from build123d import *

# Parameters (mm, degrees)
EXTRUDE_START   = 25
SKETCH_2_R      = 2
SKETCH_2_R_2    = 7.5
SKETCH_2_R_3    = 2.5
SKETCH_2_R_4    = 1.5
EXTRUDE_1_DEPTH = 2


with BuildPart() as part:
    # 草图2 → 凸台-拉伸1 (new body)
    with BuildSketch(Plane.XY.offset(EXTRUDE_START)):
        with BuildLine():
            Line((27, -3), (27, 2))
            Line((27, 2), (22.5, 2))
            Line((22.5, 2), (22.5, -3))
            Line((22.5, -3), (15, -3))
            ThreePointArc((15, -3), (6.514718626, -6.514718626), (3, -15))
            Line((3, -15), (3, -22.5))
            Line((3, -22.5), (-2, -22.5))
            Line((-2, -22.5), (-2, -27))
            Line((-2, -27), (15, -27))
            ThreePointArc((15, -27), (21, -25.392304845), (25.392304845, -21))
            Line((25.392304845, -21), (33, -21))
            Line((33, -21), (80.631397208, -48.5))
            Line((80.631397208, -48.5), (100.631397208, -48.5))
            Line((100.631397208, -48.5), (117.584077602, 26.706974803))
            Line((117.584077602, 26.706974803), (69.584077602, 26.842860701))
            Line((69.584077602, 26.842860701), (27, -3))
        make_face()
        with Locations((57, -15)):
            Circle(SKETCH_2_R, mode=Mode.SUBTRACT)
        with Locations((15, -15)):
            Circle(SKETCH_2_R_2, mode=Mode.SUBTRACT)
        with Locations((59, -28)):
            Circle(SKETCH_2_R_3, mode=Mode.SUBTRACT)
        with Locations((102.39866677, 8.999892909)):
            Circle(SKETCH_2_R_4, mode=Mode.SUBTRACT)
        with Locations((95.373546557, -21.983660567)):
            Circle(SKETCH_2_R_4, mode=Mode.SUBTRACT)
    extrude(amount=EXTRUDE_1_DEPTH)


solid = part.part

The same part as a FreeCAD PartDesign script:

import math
import FreeCAD as App
import Part
import Sketcher
Q = App.Units.Quantity

doc = App.newDocument("Part")
body = doc.addObject("PartDesign::Body", "Body")

# Sketch on XY plane
sketch1 = body.newObject("Sketcher::SketchObject", "Sketch")
sketch1.AttachmentSupport = (doc.getObject("XY_Plane"), [""])
sketch1.MapMode = "FlatFace"
sketch1.AttachmentOffset = App.Placement(App.Vector(0, 0, 25), App.Rotation())
sketch1.addGeometry([
    Part.LineSegment(App.Vector(27, -3, 0), App.Vector(27, 2, 0)),  # 0
    Part.LineSegment(App.Vector(27, 2, 0), App.Vector(22.5, 2, 0)),  # 1
    Part.LineSegment(App.Vector(22.5, 2, 0), App.Vector(22.5, -3, 0)),  # 2
    Part.LineSegment(App.Vector(22.5, -3, 0), App.Vector(15, -3, 0)),  # 3
    Part.ArcOfCircle(Part.Circle(App.Vector(15, -15, 0), App.Vector(0, 0, 1), 12), math.radians(90), math.radians(180)),  # 4
    Part.LineSegment(App.Vector(3, -15, 0), App.Vector(3, -22.5, 0)),  # 5
    Part.LineSegment(App.Vector(3, -22.5, 0), App.Vector(-2, -22.5, 0)),  # 6
    Part.LineSegment(App.Vector(-2, -22.5, 0), App.Vector(-2, -27, 0)),  # 7
    Part.LineSegment(App.Vector(-2, -27, 0), App.Vector(15, -27, 0)),  # 8
    Part.ArcOfCircle(Part.Circle(App.Vector(15, -15, 0), App.Vector(0, 0, 1), 12), math.radians(-90), math.radians(-30)),  # 9
    Part.LineSegment(App.Vector(25.392305, -21, 0), App.Vector(33, -21, 0)),  # 10
    Part.LineSegment(App.Vector(33, -21, 0), App.Vector(80.631397, -48.5, 0)),  # 11
    Part.LineSegment(App.Vector(80.631397, -48.5, 0), App.Vector(100.631397, -48.5, 0)),  # 12
    Part.LineSegment(App.Vector(100.631397, -48.5, 0), App.Vector(117.584078, 26.706975, 0)),  # 13
    Part.LineSegment(App.Vector(117.584078, 26.706975, 0), App.Vector(69.584078, 26.842861, 0)),  # 14
    Part.LineSegment(App.Vector(69.584078, 26.842861, 0), App.Vector(27, -3, 0)),  # 15
    Part.Circle(App.Vector(15, -15, 0), App.Vector(0, 0, 1), 7.5),  # 16
    Part.Circle(App.Vector(59, -28, 0), App.Vector(0, 0, 1), 2.5),  # 17
    Part.Circle(App.Vector(95.373547, -21.983661, 0), App.Vector(0, 0, 1), 1.5),  # 18
    Part.Circle(App.Vector(57, -15, 0), App.Vector(0, 0, 1), 2),  # 19
    Part.Circle(App.Vector(102.398667, 8.999893, 0), App.Vector(0, 0, 1), 1.5),  # 20
], False)
sketch1.addConstraint([
    Sketcher.Constraint("Coincident", 0, 2, 1, 1),
    Sketcher.Constraint("Coincident", 1, 2, 2, 1),
    Sketcher.Constraint("Coincident", 2, 2, 3, 1),
    Sketcher.Constraint("Tangent", 3, 2, 4, 1),
    Sketcher.Constraint("Tangent", 4, 2, 5, 1),
    Sketcher.Constraint("Coincident", 5, 2, 6, 1),
    Sketcher.Constraint("Coincident", 6, 2, 7, 1),
    Sketcher.Constraint("Coincident", 7, 2, 8, 1),
    Sketcher.Constraint("Tangent", 8, 2, 9, 1),
    Sketcher.Constraint("Coincident", 9, 2, 10, 1),
    Sketcher.Constraint("Coincident", 10, 2, 11, 1),
    Sketcher.Constraint("Coincident", 11, 2, 12, 1),
    Sketcher.Constraint("Coincident", 12, 2, 13, 1),
    Sketcher.Constraint("Coincident", 13, 2, 14, 1),
    Sketcher.Constraint("Coincident", 14, 2, 15, 1),
    Sketcher.Constraint("Coincident", 15, 2, 0, 1),
    Sketcher.Constraint("Vertical", 0),
    Sketcher.Constraint("Horizontal", 1),
    Sketcher.Constraint("Vertical", 2),
    Sketcher.Constraint("Horizontal", 3),
    Sketcher.Constraint("Vertical", 5),
    Sketcher.Constraint("Horizontal", 6),
    Sketcher.Constraint("Vertical", 7),
    Sketcher.Constraint("Horizontal", 8),
    Sketcher.Constraint("Horizontal", 10),
    Sketcher.Constraint("Horizontal", 12),
    Sketcher.Constraint("Coincident", 9, 3, 4, 3),
    Sketcher.Constraint("Coincident", 16, 3, 4, 3),
    Sketcher.Constraint("Equal", 4, 9),
    Sketcher.Constraint("Equal", 18, 20),
    Sketcher.Constraint("Horizontal", 16, 3, 19, 3),
    Sketcher.Constraint("Horizontal", 3, 2, 15, 2),
    Sketcher.Constraint("Equal", 6, 0),
    Sketcher.Constraint("Equal", 3, 5),
    Sketcher.Constraint("Equal", 1, 7),
    Sketcher.Constraint("Diameter", 16, 15.0),
    Sketcher.Constraint("Diameter", 17, 5.0),
    Sketcher.Constraint("Diameter", 18, 3.0),
    Sketcher.Constraint("Diameter", 19, 4.0),
    Sketcher.Constraint("Radius", 4, 12.0),
    Sketcher.Constraint("DistanceX", 6, 2, 6, 1, 5.0),
    Sketcher.Constraint("DistanceX", 12, 1, 12, 2, 20.0),
    Sketcher.Constraint("Angle", 11, Q("-30 deg")),
    Sketcher.Constraint("Distance", 11, 55.0),
    Sketcher.Constraint("Distance", 15, 52.0),
    Sketcher.Constraint("DistanceX", 1, 2, 1, 1, 4.5),
    Sketcher.Constraint("DistanceX", -1, 1, 4, 3, 15.0),
    Sketcher.Constraint("DistanceY", 4, 3, -1, 1, 15.0),
    Sketcher.Constraint("DistanceX", -1, 1, 17, 3, 59.0),
    Sketcher.Constraint("DistanceY", 17, 3, -1, 1, 28.0),
    Sketcher.Constraint("DistanceX", -1, 1, 19, 3, 57.0),
    Sketcher.Constraint("DistanceY", 9, 2, -1, 1, 21.0),
    Sketcher.Constraint("DistanceX", -1, 1, 10, 2, 33.0),
    Sketcher.Constraint("DistanceX", 14, 2, 13, 2, 48.0),
    Sketcher.Constraint("DistanceY", 18, 3, -1, 1, 21.983661),
    Sketcher.Constraint("DistanceY", -1, 1, 14, 2, 26.842861),
    Sketcher.Constraint("DistanceX", 18, 3, 20, 3, 7.02512),
    Sketcher.Constraint("DistanceX", 11, 2, 18, 3, 14.742149),
    Sketcher.Constraint("DistanceY", 20, 3, 13, 2, 17.707082),
    Sketcher.Constraint("Distance", 13, 77.093984),
])
pad1 = body.newObject("PartDesign::Pad", "Pad")
pad1.Profile = sketch1
pad1.Length = 2

doc.recompute()
